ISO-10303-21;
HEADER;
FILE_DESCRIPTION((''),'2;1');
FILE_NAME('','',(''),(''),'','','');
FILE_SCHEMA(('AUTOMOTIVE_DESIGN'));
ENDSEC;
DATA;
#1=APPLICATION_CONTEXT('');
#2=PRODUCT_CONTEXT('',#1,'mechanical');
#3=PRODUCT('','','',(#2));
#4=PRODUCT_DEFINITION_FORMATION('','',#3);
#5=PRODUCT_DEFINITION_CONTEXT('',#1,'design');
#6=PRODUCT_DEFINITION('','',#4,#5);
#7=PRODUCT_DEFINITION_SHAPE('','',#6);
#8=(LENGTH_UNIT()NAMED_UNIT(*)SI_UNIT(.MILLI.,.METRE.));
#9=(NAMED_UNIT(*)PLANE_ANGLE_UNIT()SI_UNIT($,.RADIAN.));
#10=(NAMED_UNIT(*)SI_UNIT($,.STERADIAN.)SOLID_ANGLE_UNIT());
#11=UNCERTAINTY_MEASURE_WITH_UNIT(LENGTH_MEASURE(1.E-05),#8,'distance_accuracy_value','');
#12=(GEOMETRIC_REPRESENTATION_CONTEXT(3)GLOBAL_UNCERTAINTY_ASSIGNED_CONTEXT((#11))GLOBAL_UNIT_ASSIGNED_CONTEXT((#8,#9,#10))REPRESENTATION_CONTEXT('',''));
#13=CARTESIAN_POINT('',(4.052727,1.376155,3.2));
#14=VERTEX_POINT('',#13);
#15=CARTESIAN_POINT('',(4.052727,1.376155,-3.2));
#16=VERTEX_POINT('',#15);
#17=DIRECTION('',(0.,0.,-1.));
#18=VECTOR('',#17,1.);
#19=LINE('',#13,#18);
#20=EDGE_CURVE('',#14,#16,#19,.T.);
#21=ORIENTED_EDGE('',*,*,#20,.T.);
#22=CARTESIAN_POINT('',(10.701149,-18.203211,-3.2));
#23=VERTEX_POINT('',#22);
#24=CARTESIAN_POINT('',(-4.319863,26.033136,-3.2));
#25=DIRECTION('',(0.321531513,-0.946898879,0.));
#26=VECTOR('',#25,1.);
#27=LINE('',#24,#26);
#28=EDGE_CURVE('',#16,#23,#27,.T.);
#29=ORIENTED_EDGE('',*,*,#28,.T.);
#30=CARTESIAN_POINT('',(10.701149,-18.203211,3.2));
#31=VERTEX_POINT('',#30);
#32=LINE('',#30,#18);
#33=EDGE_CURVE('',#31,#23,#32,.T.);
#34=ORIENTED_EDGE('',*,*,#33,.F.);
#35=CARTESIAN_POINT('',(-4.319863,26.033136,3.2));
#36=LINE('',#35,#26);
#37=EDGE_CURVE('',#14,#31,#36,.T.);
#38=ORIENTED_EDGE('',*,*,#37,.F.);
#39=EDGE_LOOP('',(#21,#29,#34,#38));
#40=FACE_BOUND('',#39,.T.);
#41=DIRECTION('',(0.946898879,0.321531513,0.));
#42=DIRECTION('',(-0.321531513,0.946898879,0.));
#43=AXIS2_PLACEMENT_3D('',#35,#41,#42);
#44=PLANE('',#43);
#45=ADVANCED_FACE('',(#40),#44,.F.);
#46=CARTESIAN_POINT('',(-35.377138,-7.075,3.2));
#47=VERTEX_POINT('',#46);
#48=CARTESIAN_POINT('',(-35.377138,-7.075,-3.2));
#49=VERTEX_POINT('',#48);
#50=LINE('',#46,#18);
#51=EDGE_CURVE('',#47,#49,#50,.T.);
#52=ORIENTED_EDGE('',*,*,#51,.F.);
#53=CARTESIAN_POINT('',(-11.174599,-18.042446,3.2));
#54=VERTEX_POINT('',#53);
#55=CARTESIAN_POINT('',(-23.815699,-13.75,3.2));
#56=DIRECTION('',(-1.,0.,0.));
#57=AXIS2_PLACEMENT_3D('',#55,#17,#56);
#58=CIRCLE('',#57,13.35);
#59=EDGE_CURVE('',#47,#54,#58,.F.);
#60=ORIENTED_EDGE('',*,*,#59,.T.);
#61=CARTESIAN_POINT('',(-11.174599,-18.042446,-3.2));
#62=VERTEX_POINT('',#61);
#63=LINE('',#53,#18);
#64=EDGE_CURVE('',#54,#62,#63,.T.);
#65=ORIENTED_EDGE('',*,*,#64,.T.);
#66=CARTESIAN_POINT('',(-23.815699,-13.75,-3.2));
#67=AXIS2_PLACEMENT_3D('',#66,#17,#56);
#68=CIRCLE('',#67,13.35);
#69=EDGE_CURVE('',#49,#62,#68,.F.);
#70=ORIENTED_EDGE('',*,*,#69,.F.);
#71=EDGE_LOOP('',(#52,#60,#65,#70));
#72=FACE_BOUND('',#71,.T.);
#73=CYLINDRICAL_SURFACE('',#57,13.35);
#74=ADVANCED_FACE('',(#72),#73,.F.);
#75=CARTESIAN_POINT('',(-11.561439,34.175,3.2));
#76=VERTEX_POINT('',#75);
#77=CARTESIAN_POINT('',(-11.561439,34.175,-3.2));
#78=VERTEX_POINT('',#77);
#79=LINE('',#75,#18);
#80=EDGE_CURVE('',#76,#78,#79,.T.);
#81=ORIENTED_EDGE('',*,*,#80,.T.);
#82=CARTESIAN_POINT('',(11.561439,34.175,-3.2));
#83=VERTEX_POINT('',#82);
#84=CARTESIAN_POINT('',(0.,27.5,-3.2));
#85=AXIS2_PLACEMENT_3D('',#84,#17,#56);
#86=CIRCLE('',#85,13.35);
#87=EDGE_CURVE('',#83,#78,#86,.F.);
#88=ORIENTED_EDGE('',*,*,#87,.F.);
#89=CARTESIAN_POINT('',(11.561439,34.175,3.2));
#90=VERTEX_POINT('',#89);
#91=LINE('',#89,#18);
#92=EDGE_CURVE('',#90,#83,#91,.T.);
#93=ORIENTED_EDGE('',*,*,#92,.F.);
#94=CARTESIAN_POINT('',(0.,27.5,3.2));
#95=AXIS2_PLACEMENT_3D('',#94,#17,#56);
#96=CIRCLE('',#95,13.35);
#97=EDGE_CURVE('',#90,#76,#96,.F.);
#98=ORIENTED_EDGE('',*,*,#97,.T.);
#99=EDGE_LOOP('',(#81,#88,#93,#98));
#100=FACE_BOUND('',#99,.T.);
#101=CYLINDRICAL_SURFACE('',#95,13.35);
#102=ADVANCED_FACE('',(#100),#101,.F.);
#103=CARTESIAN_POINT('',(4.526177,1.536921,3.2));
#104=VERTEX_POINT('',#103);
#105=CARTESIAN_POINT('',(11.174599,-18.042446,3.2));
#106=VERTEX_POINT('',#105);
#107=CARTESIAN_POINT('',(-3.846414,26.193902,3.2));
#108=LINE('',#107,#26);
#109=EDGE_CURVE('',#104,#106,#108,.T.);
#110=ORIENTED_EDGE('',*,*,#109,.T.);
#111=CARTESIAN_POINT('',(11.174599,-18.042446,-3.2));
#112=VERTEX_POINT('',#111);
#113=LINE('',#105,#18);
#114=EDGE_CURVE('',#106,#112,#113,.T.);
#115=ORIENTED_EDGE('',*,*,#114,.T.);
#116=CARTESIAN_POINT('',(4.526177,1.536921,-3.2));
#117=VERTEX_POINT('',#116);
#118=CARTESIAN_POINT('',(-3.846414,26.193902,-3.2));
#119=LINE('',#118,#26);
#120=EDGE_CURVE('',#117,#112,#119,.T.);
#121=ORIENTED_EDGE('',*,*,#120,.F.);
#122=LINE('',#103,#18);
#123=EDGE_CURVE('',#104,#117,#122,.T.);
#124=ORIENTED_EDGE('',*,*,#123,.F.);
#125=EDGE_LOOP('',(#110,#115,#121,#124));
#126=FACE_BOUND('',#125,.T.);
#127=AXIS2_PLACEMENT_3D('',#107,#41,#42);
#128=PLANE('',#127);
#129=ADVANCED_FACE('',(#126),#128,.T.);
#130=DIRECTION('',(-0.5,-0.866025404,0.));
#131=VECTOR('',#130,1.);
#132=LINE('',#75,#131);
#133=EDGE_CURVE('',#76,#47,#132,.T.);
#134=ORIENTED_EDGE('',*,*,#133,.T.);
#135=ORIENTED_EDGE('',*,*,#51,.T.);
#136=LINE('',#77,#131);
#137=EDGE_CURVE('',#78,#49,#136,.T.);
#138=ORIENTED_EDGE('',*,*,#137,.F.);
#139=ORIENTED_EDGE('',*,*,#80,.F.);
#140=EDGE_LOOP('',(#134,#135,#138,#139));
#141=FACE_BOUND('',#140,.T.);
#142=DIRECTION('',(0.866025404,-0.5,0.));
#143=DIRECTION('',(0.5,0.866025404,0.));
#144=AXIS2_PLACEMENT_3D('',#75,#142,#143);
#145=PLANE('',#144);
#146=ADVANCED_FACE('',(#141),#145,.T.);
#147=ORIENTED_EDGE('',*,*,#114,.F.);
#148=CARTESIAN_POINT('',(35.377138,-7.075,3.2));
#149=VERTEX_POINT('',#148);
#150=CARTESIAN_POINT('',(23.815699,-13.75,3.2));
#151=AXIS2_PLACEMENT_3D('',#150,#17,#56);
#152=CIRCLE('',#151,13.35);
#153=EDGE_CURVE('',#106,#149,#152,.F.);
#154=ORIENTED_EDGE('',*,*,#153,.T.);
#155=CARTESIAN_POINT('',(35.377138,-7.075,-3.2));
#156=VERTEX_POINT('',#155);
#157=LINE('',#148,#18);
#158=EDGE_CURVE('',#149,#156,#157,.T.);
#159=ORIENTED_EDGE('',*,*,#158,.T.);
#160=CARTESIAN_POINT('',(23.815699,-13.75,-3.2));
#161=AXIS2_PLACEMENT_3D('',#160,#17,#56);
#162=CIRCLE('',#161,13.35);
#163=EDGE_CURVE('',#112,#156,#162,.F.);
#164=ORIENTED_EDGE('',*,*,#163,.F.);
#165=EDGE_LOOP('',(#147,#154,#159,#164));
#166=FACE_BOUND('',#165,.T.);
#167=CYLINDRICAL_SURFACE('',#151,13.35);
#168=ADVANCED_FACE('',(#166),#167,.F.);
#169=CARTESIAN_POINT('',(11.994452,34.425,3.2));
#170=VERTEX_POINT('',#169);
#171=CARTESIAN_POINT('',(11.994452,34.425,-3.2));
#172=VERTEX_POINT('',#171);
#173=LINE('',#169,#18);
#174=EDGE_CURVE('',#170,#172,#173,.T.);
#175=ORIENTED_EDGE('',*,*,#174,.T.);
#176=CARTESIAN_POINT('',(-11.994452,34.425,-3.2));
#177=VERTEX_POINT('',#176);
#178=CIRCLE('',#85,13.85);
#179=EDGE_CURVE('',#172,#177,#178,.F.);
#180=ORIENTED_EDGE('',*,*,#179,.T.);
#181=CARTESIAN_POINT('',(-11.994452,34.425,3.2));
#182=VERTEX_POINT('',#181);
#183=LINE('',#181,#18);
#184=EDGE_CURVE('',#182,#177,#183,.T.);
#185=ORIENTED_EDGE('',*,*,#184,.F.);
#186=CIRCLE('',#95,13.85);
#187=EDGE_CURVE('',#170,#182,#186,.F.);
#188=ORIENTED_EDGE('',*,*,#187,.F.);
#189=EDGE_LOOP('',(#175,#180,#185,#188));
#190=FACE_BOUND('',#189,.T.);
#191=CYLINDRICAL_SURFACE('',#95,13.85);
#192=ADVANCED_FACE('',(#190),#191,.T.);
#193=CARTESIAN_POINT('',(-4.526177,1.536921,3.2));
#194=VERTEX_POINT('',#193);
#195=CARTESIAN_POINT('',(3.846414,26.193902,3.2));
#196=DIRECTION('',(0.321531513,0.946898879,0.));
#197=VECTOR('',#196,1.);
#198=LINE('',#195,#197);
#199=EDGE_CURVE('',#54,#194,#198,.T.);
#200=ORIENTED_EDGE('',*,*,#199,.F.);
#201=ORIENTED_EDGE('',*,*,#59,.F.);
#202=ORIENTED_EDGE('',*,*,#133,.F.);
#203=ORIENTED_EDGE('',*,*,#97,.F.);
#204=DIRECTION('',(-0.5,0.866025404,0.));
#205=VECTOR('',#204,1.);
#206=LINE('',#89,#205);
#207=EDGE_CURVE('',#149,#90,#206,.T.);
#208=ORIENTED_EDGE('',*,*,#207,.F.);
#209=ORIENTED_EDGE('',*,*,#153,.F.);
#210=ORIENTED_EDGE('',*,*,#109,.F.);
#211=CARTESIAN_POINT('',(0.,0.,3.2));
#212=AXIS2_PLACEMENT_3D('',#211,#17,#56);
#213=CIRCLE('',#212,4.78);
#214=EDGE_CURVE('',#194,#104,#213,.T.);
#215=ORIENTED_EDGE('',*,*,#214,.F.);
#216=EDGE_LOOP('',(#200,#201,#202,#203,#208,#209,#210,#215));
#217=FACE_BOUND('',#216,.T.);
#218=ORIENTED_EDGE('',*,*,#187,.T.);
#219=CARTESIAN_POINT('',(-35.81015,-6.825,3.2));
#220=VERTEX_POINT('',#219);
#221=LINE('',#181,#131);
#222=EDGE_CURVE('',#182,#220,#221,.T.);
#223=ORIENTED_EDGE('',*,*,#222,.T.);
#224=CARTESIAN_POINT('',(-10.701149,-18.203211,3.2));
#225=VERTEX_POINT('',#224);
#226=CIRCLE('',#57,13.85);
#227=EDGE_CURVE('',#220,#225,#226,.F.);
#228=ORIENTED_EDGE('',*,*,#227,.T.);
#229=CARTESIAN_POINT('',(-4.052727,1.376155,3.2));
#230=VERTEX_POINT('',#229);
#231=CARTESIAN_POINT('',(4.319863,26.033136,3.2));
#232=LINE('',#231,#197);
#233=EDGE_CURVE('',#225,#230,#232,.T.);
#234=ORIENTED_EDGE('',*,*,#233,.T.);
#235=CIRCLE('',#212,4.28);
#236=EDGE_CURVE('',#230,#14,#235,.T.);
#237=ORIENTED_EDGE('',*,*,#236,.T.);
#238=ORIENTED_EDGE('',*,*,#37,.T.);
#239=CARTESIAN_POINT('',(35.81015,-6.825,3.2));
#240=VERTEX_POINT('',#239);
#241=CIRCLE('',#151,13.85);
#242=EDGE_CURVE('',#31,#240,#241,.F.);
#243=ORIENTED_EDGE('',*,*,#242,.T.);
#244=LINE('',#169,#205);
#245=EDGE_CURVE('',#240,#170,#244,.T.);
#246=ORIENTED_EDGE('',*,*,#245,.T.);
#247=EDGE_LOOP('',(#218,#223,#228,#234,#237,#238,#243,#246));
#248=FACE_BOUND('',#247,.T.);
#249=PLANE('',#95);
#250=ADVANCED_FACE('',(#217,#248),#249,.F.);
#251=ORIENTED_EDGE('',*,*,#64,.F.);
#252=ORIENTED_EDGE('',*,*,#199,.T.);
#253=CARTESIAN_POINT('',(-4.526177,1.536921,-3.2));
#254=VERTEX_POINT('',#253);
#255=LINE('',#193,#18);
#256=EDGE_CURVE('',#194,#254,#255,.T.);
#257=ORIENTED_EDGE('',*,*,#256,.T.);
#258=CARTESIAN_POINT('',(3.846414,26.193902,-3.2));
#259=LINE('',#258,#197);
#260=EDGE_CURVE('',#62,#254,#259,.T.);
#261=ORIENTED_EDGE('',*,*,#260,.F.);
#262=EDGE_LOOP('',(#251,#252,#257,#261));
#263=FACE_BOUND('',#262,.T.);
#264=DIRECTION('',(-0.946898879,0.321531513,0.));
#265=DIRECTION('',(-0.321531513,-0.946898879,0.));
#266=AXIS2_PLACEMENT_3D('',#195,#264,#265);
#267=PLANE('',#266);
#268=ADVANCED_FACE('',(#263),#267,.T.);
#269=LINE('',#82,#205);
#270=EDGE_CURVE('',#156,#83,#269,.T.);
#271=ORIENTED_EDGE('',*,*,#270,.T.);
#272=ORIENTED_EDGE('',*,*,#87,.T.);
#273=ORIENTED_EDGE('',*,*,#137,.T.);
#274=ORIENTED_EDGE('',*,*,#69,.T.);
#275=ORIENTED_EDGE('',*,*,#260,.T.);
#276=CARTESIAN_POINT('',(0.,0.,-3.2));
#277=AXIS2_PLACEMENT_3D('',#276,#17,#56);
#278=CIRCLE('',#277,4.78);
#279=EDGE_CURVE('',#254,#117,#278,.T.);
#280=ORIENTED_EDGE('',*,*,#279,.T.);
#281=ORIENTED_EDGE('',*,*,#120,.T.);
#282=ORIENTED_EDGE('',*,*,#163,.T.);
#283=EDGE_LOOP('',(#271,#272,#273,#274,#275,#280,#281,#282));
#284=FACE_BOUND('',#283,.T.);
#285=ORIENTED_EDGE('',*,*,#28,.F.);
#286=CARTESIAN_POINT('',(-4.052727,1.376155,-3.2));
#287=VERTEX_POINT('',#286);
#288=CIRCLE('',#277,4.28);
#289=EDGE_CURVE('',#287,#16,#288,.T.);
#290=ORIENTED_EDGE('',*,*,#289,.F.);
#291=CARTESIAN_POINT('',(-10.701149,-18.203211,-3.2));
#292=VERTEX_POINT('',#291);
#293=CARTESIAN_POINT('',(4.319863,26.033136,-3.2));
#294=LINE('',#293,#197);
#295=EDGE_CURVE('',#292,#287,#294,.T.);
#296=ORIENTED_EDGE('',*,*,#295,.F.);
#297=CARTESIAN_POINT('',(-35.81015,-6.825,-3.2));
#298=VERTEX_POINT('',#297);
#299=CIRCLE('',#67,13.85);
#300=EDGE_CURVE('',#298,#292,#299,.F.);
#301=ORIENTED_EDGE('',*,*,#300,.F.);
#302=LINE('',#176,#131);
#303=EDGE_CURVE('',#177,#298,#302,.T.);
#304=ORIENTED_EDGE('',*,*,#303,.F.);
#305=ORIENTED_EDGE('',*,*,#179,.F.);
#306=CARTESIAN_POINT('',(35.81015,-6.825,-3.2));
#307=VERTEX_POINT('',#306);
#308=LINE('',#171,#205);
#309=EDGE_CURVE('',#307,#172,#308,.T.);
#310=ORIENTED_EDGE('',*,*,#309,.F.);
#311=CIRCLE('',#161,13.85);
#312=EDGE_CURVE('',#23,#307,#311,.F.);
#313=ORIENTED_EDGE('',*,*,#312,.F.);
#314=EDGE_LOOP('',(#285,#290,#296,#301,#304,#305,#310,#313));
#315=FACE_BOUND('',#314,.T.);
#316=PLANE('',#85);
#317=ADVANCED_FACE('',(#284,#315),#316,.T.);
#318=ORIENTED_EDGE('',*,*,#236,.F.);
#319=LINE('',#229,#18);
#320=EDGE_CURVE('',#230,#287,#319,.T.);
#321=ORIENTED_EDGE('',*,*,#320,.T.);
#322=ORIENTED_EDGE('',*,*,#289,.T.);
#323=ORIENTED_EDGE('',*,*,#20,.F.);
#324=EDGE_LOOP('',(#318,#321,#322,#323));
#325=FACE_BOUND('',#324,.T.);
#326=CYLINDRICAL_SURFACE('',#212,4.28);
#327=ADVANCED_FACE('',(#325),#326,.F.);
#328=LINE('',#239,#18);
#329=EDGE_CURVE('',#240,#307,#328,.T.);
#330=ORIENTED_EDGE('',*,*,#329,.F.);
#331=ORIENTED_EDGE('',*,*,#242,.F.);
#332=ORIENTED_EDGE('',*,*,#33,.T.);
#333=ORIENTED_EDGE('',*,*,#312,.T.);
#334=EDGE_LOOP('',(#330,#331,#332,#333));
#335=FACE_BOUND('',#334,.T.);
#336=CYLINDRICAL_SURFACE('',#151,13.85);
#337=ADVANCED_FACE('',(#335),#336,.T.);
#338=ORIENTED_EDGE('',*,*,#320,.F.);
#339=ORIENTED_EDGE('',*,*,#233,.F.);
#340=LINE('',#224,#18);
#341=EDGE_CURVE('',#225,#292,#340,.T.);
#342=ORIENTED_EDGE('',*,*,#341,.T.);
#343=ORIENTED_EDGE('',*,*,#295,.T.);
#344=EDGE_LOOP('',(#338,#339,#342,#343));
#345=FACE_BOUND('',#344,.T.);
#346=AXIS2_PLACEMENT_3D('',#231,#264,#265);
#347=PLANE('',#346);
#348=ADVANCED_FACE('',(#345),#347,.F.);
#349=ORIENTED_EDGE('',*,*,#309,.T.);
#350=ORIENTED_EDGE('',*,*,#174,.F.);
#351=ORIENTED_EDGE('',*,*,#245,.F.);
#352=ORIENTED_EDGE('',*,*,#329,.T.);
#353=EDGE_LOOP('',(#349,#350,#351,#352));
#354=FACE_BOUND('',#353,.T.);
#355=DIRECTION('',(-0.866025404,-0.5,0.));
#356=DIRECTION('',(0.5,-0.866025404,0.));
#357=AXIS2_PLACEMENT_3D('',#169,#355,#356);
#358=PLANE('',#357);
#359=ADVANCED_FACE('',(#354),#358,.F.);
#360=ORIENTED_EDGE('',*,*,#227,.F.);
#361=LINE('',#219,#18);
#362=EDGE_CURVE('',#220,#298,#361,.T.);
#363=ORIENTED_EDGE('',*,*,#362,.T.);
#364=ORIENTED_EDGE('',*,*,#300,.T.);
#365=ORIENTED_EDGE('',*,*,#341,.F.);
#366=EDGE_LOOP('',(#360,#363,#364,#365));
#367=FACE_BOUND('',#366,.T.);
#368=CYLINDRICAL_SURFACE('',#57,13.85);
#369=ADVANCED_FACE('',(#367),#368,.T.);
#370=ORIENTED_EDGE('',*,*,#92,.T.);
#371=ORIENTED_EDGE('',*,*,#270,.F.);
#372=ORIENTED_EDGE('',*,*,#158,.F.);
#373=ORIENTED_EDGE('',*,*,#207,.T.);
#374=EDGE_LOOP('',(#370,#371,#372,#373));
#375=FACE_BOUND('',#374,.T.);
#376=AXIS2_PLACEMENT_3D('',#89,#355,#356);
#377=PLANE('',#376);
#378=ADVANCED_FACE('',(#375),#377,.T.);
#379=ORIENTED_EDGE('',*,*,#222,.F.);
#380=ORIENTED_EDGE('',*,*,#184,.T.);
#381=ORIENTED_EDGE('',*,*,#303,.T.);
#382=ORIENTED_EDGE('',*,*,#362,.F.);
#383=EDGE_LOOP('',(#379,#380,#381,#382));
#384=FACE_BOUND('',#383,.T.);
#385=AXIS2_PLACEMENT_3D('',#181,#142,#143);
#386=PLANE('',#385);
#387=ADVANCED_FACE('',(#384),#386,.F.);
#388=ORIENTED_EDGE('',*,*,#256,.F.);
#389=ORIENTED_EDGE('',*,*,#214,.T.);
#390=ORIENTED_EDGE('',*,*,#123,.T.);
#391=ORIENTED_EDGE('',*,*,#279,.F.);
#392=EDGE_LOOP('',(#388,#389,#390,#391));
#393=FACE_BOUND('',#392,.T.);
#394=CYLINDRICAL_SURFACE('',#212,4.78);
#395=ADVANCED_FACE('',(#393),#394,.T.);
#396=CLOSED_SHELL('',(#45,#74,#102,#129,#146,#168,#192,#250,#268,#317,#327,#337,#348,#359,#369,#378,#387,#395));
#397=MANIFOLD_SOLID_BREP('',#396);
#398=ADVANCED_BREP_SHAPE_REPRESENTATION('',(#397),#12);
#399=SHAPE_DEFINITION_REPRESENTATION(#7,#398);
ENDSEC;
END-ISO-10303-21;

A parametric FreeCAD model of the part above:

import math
import FreeCAD as App
import Part
import Sketcher
from FreeCAD import Vector
Q = App.Units.Quantity

doc = App.newDocument("Part")
params = doc.addObject("Spreadsheet::Sheet", "Params")
for row, (alias, value) in enumerate([
    ("sketch1_radius", "4.28 mm"),
    ("sketch1_radius2", "13.85 mm"),
    ("sketch1_radius3", "13.35 mm"),
    ("pad1_length", "6.4 mm"),
], start=1):
    params.set(f"A{row}", alias)
    params.set(f"B{row}", "=" + value)
    params.setAlias(f"B{row}", alias)

body = doc.addObject("PartDesign::Body", "Body")

# Sketch on XY plane
sketch1 = body.newObject("Sketcher::SketchObject", "Sketch")
sketch1.AttachmentSupport = (doc.getObject("XY_Plane"), [""])
sketch1.MapMode = "FlatFace"
sketch1.addGeometry(Part.LineSegment(Vector(-10.7, -18.2, 0), Vector(-4.1, 1.4, 0)), False)
sketch1.addGeometry(Part.ArcOfCircle(Part.Circle(Vector(0, 0, 0), Vector(0, 0, 1), 4.3), math.radians(19), math.radians(161)), False)
sketch1.addGeometry(Part.LineSegment(Vector(4.1, 1.4, 0), Vector(10.7, -18.2, 0)), False)
sketch1.addGeometry(Part.ArcOfCircle(Part.Circle(Vector(23.8, -13.8, 0), Vector(0, 0, 1), 13.8), math.radians(-161), math.radians(30)), False)
sketch1.addGeometry(Part.LineSegment(Vector(35.8, -6.8, 0), Vector(12, 34.4, 0)), False)
sketch1.addGeometry(Part.ArcOfCircle(Part.Circle(Vector(0, 27.5, 0), Vector(0, 0, 1), 13.8), math.radians(30), math.radians(150)), False)
sketch1.addGeometry(Part.LineSegment(Vector(-12, 34.4, 0), Vector(-35.8, -6.8, 0)), False)
sketch1.addGeometry(Part.ArcOfCircle(Part.Circle(Vector(-23.8, -13.8, 0), Vector(0, 0, 1), 13.8), math.radians(150), math.radians(341)), False)
sketch1.addGeometry(Part.LineSegment(Vector(-4.5, 1.5, 0), Vector(-11.2, -18, 0)), False)
sketch1.addGeometry(Part.ArcOfCircle(Part.Circle(Vector(-23.8, -13.8, 0), Vector(0, 0, 1), 13.3), math.radians(150), math.radians(341)), False)
sketch1.addGeometry(Part.LineSegment(Vector(-35.4, -7.1, 0), Vector(-11.6, 34.2, 0)), False)
sketch1.addGeometry(Part.ArcOfCircle(Part.Circle(Vector(0, 27.5, 0), Vector(0, 0, 1), 13.4), math.radians(30), math.radians(150)), False)
sketch1.addGeometry(Part.LineSegment(Vector(11.6, 34.2, 0), Vector(35.4, -7.1, 0)), False)
sketch1.addGeometry(Part.ArcOfCircle(Part.Circle(Vector(23.8, -13.8, 0), Vector(0, 0, 1), 13.3), math.radians(-161), math.radians(30)), False)
sketch1.addGeometry(Part.LineSegment(Vector(11.2, -18, 0), Vector(4.5, 1.5, 0)), False)
sketch1.addGeometry(Part.ArcOfCircle(Part.Circle(Vector(0, 0, 0), Vector(0, 0, 1), 4.8), math.radians(19), math.radians(161)), False)
sketch1.addConstraint(Sketcher.Constraint("Tangent", 0, 2, 1, 2))
sketch1.addConstraint(Sketcher.Constraint("Tangent", 1, 1, 2, 1))
sketch1.addConstraint(Sketcher.Constraint("Tangent", 2, 2, 3, 1))
sketch1.addConstraint(Sketcher.Constraint("Tangent", 3, 2, 4, 1))
sketch1.addConstraint(Sketcher.Constraint("Tangent", 4, 2, 5, 1))
sketch1.addConstraint(Sketcher.Constraint("Tangent", 5, 2, 6, 1))
sketch1.addConstraint(Sketcher.Constraint("Tangent", 6, 2, 7, 1))
sketch1.addConstraint(Sketcher.Constraint("Tangent", 7, 2, 0, 1))
sketch1.addConstraint(Sketcher.Constraint("Tangent", 8, 2, 9, 2))
sketch1.addConstraint(Sketcher.Constraint("Tangent", 9, 1, 10, 1))
sketch1.addConstraint(Sketcher.Constraint("Tangent", 10, 2, 11, 2))
sketch1.addConstraint(Sketcher.Constraint("Tangent", 11, 1, 12, 1))
sketch1.addConstraint(Sketcher.Constraint("Tangent", 12, 2, 13, 2))
sketch1.addConstraint(Sketcher.Constraint("Tangent", 13, 1, 14, 1))
sketch1.addConstraint(Sketcher.Constraint("Tangent", 14, 2, 15, 1))
sketch1.addConstraint(Sketcher.Constraint("Tangent", 15, 2, 8, 1))
sketch1.addConstraint(Sketcher.Constraint("Coincident", 1, 3, -1, 1))
sketch1.addConstraint(Sketcher.Constraint("Coincident", 15, 3, -1, 1))
sketch1.addConstraint(Sketcher.Constraint("Coincident", 9, 3, 7, 3))
sketch1.addConstraint(Sketcher.Constraint("Coincident", 11, 3, 5, 3))
sketch1.addConstraint(Sketcher.Constraint("Coincident", 13, 3, 3, 3))
sketch1.addConstraint(Sketcher.Constraint("Equal", 3, 5))
sketch1.addConstraint(Sketcher.Constraint("Equal", 5, 7))
sketch1.addConstraint(Sketcher.Constraint("Equal", 9, 11))
sketch1.addConstraint(Sketcher.Constraint("Equal", 11, 13))
sketch1.addConstraint(Sketcher.Constraint("Symmetric", 3, 3, 7, 3, -2))
sketch1.addConstraint(Sketcher.Constraint("PointOnObject", 5, 3, -2))
sketch1.addConstraint(Sketcher.Constraint("Parallel", 0, 8))
sketch1.addConstraint(Sketcher.Constraint("Angle", 4, Q("120 deg")))
sketch1.addConstraint(Sketcher.Constraint("Radius", 1, 4.28))
sketch1.addConstraint(Sketcher.Constraint("Radius", 3, 13.85))
sketch1.addConstraint(Sketcher.Constraint("Radius", 9, 13.35))
sketch1.addConstraint(Sketcher.Constraint("DistanceY", -1, 1, 5, 3, 27.5))
sketch1.addConstraint(Sketcher.Constraint("DistanceY", 3, 3, -1, 1, 13.75))
sketch1.setExpression("Constraints[29]", "Params.sketch1_radius")
sketch1.setExpression("Constraints[30]", "Params.sketch1_radius2")
sketch1.setExpression("Constraints[31]", "Params.sketch1_radius3")
pad1 = body.newObject("PartDesign::Pad", "Pad")
pad1.Profile = sketch1
pad1.setExpression("Length", "Params.pad1_length")
pad1.Midplane = True

doc.recompute()
